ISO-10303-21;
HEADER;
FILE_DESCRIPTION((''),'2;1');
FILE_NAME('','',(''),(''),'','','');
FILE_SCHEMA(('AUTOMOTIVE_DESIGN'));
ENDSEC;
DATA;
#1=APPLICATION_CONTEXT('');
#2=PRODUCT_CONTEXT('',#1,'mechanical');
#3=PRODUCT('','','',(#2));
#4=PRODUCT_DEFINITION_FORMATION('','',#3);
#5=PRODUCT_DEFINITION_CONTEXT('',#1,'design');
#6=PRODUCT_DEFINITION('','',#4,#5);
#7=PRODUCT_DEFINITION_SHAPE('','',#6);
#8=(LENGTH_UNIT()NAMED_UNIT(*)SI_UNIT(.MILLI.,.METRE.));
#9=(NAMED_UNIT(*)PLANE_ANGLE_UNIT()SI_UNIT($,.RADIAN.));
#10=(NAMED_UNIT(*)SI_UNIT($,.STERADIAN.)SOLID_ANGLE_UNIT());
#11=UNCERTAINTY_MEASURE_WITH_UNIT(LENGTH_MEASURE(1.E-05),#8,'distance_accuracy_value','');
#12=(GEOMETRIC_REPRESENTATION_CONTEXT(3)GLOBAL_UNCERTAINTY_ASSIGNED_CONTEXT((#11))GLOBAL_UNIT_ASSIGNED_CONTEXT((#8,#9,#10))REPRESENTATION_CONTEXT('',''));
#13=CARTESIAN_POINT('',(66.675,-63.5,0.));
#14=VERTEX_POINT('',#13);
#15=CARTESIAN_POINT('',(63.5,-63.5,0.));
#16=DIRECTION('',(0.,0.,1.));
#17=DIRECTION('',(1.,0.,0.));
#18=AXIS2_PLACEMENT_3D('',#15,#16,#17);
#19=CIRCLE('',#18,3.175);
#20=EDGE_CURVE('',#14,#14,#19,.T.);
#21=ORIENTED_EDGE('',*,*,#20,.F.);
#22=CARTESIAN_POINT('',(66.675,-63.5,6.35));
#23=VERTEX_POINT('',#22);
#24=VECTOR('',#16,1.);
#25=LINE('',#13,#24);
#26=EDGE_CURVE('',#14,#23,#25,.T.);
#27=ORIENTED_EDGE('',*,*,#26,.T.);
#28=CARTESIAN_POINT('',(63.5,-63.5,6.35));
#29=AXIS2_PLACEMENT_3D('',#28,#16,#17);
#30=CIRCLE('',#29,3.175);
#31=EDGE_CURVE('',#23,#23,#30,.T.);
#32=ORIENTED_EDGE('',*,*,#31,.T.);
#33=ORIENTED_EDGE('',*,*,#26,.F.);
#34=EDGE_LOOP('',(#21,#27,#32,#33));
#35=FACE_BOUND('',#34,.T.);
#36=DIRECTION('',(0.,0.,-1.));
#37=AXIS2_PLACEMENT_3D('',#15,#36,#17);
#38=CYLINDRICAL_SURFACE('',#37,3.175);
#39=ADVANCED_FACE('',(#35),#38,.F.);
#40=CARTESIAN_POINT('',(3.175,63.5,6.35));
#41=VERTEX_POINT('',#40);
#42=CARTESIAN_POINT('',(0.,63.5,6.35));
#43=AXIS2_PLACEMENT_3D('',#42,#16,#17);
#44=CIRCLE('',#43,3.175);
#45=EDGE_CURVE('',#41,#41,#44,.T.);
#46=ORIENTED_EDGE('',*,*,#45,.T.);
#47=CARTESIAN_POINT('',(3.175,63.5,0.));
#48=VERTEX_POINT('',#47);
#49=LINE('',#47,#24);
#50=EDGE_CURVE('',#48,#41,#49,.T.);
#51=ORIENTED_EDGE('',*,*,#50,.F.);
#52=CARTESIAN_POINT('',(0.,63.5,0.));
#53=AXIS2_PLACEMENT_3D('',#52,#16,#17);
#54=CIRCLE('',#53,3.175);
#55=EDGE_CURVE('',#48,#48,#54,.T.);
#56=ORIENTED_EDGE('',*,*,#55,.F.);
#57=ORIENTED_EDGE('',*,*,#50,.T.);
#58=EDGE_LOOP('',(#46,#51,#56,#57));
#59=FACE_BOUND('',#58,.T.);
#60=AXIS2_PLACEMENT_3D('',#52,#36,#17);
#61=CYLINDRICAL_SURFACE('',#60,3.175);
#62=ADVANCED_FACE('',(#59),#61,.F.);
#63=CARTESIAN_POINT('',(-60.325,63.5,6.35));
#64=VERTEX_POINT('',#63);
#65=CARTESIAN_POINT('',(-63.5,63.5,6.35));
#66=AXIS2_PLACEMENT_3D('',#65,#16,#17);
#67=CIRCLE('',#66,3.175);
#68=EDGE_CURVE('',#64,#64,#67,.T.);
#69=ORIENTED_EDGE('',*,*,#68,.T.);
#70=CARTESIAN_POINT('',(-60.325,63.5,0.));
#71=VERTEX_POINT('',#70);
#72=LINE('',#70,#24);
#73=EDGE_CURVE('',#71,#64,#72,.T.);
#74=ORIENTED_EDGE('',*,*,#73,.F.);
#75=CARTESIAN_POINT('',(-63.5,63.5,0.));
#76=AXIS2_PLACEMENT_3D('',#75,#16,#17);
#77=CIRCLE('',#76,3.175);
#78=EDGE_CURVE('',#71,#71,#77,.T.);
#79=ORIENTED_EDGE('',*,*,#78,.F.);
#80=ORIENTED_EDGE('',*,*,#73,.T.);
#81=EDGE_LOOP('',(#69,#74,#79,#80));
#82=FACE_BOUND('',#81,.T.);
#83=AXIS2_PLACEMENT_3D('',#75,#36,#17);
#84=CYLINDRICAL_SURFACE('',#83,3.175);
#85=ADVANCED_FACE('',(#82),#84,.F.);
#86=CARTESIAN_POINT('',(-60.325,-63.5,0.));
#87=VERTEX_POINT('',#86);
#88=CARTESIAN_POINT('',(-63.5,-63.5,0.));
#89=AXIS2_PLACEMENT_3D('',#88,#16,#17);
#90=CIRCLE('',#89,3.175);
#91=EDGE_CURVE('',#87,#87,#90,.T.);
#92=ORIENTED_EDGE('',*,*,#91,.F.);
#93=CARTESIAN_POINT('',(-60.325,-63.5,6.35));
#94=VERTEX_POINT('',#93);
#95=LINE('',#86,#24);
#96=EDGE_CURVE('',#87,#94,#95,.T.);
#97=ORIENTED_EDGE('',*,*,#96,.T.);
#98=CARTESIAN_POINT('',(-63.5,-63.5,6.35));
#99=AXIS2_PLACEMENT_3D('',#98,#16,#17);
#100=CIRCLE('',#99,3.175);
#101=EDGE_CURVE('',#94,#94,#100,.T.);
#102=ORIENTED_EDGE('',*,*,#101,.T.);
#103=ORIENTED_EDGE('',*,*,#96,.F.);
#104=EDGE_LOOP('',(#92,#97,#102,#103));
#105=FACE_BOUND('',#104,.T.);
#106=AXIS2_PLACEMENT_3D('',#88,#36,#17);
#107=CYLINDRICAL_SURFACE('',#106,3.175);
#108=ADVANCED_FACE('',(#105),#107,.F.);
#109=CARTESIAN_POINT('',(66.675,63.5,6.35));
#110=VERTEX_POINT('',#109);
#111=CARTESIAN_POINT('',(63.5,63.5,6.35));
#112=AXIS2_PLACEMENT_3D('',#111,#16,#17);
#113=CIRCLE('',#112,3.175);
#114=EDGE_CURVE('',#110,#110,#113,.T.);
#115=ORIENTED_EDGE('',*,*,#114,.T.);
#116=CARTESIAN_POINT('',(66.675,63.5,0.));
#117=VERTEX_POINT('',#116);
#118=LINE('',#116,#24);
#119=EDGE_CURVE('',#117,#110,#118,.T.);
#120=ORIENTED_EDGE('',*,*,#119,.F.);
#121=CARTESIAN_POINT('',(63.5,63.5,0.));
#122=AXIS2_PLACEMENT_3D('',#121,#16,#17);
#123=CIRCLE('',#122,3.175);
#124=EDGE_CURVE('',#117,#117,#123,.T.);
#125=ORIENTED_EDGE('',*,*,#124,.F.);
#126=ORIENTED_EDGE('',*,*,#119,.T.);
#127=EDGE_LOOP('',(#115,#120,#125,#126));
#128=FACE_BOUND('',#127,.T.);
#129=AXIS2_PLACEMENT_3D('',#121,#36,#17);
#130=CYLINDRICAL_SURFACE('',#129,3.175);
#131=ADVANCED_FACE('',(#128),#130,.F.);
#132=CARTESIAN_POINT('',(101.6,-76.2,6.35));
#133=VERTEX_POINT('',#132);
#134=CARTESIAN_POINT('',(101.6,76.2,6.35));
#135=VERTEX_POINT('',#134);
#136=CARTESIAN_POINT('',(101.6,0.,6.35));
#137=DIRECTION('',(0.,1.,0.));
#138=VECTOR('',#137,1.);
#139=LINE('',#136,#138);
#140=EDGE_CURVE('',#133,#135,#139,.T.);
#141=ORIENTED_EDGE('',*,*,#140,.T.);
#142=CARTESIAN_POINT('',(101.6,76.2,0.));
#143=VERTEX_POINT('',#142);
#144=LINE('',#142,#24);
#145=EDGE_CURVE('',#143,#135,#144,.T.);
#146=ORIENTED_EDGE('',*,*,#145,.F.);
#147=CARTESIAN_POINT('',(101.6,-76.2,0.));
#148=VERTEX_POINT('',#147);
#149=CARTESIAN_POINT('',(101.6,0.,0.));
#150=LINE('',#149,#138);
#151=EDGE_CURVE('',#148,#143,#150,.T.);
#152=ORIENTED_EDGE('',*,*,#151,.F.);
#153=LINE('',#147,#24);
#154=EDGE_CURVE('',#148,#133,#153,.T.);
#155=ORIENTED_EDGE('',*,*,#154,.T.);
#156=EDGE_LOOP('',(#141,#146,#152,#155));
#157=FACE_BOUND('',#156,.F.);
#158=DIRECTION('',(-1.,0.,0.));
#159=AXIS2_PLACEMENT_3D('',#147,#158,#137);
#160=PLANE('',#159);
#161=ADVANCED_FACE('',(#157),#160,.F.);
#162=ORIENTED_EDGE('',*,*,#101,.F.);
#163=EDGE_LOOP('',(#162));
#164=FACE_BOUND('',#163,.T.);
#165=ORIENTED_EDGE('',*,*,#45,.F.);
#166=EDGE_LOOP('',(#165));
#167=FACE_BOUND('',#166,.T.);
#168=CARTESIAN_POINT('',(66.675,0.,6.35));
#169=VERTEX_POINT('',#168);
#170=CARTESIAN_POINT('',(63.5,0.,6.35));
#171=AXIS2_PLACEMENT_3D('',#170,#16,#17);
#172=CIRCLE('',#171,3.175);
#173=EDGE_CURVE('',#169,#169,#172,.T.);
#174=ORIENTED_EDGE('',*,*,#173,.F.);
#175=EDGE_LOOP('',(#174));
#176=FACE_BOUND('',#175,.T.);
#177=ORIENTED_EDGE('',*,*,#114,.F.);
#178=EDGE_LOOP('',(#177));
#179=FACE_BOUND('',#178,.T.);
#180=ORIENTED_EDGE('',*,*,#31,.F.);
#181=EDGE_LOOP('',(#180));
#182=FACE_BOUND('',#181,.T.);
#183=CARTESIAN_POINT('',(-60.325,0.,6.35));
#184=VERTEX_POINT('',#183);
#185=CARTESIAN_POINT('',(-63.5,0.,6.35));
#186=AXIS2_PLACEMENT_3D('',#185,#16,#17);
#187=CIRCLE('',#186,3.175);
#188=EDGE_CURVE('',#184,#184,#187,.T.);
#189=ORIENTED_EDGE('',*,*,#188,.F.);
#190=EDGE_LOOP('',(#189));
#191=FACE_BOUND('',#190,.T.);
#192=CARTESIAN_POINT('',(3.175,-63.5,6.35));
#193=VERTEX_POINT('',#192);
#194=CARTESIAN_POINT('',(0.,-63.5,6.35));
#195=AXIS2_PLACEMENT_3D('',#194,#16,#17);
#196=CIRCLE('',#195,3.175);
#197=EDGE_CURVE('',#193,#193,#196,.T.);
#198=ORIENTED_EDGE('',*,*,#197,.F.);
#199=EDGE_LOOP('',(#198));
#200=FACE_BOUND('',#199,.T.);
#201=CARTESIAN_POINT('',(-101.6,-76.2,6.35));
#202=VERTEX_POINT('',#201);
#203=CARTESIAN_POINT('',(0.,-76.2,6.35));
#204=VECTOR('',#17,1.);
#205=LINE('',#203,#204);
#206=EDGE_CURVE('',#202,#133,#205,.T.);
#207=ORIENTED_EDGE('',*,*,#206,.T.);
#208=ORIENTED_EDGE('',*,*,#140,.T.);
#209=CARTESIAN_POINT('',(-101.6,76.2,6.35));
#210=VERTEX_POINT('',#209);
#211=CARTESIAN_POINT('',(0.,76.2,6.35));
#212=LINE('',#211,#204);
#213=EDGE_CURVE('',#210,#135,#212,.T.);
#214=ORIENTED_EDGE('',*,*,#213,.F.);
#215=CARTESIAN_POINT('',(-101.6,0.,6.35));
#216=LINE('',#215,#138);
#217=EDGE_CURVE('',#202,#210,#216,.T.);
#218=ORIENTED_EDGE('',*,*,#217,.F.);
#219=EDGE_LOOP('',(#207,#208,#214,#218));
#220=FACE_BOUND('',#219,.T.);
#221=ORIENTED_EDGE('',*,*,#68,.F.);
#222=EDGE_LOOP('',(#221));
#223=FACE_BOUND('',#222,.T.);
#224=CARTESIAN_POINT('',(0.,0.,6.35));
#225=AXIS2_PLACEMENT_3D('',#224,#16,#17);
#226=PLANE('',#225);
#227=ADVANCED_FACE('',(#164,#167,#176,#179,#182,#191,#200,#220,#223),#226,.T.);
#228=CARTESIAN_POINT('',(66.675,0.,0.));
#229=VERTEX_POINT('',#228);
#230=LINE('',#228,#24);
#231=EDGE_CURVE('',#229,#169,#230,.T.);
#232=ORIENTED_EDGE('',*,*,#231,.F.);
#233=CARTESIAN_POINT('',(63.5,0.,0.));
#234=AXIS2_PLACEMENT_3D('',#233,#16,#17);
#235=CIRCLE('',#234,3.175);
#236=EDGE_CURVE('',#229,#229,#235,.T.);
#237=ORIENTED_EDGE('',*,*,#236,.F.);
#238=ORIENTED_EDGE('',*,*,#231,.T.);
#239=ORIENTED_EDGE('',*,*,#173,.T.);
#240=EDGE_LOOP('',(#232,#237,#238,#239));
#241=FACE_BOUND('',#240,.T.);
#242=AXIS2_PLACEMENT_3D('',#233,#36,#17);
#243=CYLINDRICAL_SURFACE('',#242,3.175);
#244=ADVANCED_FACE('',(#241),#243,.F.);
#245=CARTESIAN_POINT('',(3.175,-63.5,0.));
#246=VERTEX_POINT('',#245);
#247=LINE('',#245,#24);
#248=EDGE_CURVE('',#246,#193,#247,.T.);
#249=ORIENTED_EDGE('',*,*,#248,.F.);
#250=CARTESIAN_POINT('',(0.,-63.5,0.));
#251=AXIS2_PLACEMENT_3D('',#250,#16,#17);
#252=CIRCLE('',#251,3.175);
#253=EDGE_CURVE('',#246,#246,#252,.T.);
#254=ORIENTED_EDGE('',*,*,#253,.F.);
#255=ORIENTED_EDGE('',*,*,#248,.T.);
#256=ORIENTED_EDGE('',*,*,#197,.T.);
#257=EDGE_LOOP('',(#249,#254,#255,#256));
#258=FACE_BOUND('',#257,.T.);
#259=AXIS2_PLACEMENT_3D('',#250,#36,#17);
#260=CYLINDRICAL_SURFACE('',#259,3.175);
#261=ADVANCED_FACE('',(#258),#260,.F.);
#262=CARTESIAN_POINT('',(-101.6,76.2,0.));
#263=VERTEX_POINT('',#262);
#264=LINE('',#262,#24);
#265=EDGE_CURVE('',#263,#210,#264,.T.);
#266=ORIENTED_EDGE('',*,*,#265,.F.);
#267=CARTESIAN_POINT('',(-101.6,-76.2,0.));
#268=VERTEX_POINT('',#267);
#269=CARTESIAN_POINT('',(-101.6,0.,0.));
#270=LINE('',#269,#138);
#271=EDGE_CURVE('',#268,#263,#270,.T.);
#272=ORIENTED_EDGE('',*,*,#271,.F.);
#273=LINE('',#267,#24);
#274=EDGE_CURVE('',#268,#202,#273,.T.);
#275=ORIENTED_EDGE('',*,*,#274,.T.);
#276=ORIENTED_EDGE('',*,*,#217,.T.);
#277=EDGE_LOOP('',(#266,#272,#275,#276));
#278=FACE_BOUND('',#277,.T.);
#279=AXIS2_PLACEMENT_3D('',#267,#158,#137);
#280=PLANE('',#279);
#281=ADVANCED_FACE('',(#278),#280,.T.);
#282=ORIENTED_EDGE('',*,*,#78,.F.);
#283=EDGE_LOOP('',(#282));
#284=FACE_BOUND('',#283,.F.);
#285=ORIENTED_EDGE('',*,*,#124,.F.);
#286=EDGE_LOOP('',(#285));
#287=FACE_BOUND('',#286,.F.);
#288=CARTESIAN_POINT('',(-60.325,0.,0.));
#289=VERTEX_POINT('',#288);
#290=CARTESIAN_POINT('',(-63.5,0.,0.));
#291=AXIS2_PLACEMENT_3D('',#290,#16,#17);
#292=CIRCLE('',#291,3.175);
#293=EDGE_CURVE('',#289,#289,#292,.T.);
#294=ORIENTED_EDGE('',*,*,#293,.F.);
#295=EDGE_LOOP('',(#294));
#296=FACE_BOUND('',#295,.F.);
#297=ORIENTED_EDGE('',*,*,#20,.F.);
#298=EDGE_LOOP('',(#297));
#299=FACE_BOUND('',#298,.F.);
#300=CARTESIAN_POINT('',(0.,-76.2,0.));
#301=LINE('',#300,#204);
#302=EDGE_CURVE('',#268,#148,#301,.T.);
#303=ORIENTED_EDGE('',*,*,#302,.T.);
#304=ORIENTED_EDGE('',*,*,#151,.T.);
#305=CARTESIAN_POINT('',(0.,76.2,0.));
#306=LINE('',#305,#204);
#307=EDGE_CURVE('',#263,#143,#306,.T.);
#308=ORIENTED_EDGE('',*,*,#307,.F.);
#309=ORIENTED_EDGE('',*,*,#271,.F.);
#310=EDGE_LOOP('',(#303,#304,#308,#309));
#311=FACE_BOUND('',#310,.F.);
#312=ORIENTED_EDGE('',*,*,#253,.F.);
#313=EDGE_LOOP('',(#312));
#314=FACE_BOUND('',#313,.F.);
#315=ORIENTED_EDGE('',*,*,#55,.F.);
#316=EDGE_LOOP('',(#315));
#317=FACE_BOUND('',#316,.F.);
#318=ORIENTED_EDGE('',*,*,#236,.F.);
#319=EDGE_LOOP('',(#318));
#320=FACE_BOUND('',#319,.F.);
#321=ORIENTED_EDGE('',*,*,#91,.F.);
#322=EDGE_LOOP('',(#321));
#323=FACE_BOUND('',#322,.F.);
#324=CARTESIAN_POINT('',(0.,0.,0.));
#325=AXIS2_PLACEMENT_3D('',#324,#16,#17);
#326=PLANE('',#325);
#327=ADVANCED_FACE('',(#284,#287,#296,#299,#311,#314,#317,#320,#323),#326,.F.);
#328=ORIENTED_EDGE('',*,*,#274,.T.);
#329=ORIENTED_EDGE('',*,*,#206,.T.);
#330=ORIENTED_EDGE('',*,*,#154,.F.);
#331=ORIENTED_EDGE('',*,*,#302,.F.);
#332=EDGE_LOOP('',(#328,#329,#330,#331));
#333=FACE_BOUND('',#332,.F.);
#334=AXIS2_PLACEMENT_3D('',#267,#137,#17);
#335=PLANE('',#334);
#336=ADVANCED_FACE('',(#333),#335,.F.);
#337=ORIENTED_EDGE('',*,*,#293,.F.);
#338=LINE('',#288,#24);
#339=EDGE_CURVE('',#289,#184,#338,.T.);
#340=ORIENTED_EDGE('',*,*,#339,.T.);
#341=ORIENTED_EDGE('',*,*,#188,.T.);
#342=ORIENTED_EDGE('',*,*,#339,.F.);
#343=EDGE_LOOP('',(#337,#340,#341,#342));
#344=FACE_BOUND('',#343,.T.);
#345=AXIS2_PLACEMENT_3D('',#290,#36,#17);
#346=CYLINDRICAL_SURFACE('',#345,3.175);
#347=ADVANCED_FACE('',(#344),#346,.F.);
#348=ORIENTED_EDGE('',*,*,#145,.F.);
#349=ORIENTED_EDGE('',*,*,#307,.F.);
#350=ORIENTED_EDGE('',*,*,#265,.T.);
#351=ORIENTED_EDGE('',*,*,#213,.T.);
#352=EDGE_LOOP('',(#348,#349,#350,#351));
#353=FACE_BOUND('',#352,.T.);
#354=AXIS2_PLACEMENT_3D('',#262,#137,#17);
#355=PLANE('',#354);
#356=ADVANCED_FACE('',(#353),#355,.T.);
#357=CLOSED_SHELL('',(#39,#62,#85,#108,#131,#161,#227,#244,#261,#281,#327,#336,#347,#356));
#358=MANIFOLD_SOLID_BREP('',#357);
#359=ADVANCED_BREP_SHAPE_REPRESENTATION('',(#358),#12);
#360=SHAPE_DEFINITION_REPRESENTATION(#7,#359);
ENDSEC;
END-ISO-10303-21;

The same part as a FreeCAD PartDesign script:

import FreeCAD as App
import Part
import Sketcher
Q = App.Units.Quantity

doc = App.newDocument("Part")
body = doc.addObject("PartDesign::Body", "Body")

sketch1 = body.newObject("Sketcher::SketchObject", "Sketch")
sketch1.AttachmentSupport = (doc.getObject("XY_Plane"), [""])
sketch1.MapMode = "FlatFace"
sketch1.addGeometry(Part.LineSegment(App.Vector(-101.6, 76.2, 0), App.Vector(-101.6, -76.2, 0)), False)
sketch1.addGeometry(Part.LineSegment(App.Vector(-101.6, -76.2, 0), App.Vector(101.6, -76.2, 0)), False)
sketch1.addGeometry(Part.LineSegment(App.Vector(101.6, -76.2, 0), App.Vector(101.6, 76.2, 0)), False)
sketch1.addGeometry(Part.LineSegment(App.Vector(101.6, 76.2, 0), App.Vector(-101.6, 76.2, 0)), False)
sketch1.addGeometry(Part.Circle(App.Vector(-63.5, -63.5, 0), App.Vector(0, 0, 1), 3.175), False)
sketch1.addGeometry(Part.Circle(App.Vector(0, -63.5, 0), App.Vector(0, 0, 1), 3.175), False)
sketch1.addGeometry(Part.Circle(App.Vector(63.5, -63.5, 0), App.Vector(0, 0, 1), 3.175), False)
sketch1.addGeometry(Part.Circle(App.Vector(-63.5, 0, 0), App.Vector(0, 0, 1), 3.175), False)
sketch1.addGeometry(Part.Circle(App.Vector(-63.5, 63.5, 0), App.Vector(0, 0, 1), 3.175), False)
sketch1.addGeometry(Part.Circle(App.Vector(63.5, 0, 0), App.Vector(0, 0, 1), 3.175), False)
sketch1.addGeometry(Part.Circle(App.Vector(0, 63.5, 0), App.Vector(0, 0, 1), 3.175), False)
sketch1.addGeometry(Part.Circle(App.Vector(63.5, 63.5, 0), App.Vector(0, 0, 1), 3.175), False)
sketch1.addConstraint(Sketcher.Constraint("Coincident", 0, 2, 1, 1))
sketch1.addConstraint(Sketcher.Constraint("Coincident", 1, 2, 2, 1))
sketch1.addConstraint(Sketcher.Constraint("Coincident", 2, 2, 3, 1))
sketch1.addConstraint(Sketcher.Constraint("Coincident", 3, 2, 0, 1))
sketch1.addConstraint(Sketcher.Constraint("Vertical", 0))
sketch1.addConstraint(Sketcher.Constraint("Horizontal", 1))
sketch1.addConstraint(Sketcher.Constraint("Vertical", 2))
sketch1.addConstraint(Sketcher.Constraint("Horizontal", 3))
sketch1.addConstraint(Sketcher.Constraint("Equal", 4, 5))
sketch1.addConstraint(Sketcher.Constraint("Equal", 5, 6))
sketch1.addConstraint(Sketcher.Constraint("Equal", 6, 7))
sketch1.addConstraint(Sketcher.Constraint("Equal", 7, 8))
sketch1.addConstraint(Sketcher.Constraint("Equal", 8, 9))
sketch1.addConstraint(Sketcher.Constraint("Equal", 9, 10))
sketch1.addConstraint(Sketcher.Constraint("Equal", 10, 11))
sketch1.addConstraint(Sketcher.Constraint("Symmetric", 6, 3, 8, 3, -1, 1))
sketch1.addConstraint(Sketcher.Constraint("Symmetric", 7, 3, 9, 3, -1, 1))
sketch1.addConstraint(Sketcher.Constraint("Symmetric", 5, 3, 10, 3, -1, 1))
sketch1.addConstraint(Sketcher.Constraint("Symmetric", 4, 3, 11, 3, -1, 1))
sketch1.addConstraint(Sketcher.Constraint("Symmetric", 0, 2, 2, 2, -1, 1))
sketch1.addConstraint(Sketcher.Constraint("Symmetric", 4, 3, 6, 3, -2))
sketch1.addConstraint(Sketcher.Constraint("PointOnObject", 5, 3, -2))
sketch1.addConstraint(Sketcher.Constraint("PointOnObject", 7, 3, -1))
sketch1.addConstraint(Sketcher.Constraint("Horizontal", 4, 3, 5, 3))
sketch1.addConstraint(Sketcher.Constraint("Vertical", 4, 3, 7, 3))
sketch1.addConstraint(Sketcher.Constraint("Diameter", 4, Q("0.25 in")))
sketch1.addConstraint(Sketcher.Constraint("DistanceX", 1, 1, 1, 2, Q("8 in")))
sketch1.addConstraint(Sketcher.Constraint("DistanceY", 0, 2, 0, 1, Q("6 in")))
sketch1.addConstraint(Sketcher.Constraint("DistanceX", 4, 3, 6, 3, Q("5 in")))
sketch1.addConstraint(Sketcher.Constraint("DistanceY", 4, 3, 8, 3, Q("5 in")))
pad1 = body.newObject("PartDesign::Pad", "Pad")
pad1.Profile = sketch1
pad1.Length = Q("0.25 in")

doc.recompute()
